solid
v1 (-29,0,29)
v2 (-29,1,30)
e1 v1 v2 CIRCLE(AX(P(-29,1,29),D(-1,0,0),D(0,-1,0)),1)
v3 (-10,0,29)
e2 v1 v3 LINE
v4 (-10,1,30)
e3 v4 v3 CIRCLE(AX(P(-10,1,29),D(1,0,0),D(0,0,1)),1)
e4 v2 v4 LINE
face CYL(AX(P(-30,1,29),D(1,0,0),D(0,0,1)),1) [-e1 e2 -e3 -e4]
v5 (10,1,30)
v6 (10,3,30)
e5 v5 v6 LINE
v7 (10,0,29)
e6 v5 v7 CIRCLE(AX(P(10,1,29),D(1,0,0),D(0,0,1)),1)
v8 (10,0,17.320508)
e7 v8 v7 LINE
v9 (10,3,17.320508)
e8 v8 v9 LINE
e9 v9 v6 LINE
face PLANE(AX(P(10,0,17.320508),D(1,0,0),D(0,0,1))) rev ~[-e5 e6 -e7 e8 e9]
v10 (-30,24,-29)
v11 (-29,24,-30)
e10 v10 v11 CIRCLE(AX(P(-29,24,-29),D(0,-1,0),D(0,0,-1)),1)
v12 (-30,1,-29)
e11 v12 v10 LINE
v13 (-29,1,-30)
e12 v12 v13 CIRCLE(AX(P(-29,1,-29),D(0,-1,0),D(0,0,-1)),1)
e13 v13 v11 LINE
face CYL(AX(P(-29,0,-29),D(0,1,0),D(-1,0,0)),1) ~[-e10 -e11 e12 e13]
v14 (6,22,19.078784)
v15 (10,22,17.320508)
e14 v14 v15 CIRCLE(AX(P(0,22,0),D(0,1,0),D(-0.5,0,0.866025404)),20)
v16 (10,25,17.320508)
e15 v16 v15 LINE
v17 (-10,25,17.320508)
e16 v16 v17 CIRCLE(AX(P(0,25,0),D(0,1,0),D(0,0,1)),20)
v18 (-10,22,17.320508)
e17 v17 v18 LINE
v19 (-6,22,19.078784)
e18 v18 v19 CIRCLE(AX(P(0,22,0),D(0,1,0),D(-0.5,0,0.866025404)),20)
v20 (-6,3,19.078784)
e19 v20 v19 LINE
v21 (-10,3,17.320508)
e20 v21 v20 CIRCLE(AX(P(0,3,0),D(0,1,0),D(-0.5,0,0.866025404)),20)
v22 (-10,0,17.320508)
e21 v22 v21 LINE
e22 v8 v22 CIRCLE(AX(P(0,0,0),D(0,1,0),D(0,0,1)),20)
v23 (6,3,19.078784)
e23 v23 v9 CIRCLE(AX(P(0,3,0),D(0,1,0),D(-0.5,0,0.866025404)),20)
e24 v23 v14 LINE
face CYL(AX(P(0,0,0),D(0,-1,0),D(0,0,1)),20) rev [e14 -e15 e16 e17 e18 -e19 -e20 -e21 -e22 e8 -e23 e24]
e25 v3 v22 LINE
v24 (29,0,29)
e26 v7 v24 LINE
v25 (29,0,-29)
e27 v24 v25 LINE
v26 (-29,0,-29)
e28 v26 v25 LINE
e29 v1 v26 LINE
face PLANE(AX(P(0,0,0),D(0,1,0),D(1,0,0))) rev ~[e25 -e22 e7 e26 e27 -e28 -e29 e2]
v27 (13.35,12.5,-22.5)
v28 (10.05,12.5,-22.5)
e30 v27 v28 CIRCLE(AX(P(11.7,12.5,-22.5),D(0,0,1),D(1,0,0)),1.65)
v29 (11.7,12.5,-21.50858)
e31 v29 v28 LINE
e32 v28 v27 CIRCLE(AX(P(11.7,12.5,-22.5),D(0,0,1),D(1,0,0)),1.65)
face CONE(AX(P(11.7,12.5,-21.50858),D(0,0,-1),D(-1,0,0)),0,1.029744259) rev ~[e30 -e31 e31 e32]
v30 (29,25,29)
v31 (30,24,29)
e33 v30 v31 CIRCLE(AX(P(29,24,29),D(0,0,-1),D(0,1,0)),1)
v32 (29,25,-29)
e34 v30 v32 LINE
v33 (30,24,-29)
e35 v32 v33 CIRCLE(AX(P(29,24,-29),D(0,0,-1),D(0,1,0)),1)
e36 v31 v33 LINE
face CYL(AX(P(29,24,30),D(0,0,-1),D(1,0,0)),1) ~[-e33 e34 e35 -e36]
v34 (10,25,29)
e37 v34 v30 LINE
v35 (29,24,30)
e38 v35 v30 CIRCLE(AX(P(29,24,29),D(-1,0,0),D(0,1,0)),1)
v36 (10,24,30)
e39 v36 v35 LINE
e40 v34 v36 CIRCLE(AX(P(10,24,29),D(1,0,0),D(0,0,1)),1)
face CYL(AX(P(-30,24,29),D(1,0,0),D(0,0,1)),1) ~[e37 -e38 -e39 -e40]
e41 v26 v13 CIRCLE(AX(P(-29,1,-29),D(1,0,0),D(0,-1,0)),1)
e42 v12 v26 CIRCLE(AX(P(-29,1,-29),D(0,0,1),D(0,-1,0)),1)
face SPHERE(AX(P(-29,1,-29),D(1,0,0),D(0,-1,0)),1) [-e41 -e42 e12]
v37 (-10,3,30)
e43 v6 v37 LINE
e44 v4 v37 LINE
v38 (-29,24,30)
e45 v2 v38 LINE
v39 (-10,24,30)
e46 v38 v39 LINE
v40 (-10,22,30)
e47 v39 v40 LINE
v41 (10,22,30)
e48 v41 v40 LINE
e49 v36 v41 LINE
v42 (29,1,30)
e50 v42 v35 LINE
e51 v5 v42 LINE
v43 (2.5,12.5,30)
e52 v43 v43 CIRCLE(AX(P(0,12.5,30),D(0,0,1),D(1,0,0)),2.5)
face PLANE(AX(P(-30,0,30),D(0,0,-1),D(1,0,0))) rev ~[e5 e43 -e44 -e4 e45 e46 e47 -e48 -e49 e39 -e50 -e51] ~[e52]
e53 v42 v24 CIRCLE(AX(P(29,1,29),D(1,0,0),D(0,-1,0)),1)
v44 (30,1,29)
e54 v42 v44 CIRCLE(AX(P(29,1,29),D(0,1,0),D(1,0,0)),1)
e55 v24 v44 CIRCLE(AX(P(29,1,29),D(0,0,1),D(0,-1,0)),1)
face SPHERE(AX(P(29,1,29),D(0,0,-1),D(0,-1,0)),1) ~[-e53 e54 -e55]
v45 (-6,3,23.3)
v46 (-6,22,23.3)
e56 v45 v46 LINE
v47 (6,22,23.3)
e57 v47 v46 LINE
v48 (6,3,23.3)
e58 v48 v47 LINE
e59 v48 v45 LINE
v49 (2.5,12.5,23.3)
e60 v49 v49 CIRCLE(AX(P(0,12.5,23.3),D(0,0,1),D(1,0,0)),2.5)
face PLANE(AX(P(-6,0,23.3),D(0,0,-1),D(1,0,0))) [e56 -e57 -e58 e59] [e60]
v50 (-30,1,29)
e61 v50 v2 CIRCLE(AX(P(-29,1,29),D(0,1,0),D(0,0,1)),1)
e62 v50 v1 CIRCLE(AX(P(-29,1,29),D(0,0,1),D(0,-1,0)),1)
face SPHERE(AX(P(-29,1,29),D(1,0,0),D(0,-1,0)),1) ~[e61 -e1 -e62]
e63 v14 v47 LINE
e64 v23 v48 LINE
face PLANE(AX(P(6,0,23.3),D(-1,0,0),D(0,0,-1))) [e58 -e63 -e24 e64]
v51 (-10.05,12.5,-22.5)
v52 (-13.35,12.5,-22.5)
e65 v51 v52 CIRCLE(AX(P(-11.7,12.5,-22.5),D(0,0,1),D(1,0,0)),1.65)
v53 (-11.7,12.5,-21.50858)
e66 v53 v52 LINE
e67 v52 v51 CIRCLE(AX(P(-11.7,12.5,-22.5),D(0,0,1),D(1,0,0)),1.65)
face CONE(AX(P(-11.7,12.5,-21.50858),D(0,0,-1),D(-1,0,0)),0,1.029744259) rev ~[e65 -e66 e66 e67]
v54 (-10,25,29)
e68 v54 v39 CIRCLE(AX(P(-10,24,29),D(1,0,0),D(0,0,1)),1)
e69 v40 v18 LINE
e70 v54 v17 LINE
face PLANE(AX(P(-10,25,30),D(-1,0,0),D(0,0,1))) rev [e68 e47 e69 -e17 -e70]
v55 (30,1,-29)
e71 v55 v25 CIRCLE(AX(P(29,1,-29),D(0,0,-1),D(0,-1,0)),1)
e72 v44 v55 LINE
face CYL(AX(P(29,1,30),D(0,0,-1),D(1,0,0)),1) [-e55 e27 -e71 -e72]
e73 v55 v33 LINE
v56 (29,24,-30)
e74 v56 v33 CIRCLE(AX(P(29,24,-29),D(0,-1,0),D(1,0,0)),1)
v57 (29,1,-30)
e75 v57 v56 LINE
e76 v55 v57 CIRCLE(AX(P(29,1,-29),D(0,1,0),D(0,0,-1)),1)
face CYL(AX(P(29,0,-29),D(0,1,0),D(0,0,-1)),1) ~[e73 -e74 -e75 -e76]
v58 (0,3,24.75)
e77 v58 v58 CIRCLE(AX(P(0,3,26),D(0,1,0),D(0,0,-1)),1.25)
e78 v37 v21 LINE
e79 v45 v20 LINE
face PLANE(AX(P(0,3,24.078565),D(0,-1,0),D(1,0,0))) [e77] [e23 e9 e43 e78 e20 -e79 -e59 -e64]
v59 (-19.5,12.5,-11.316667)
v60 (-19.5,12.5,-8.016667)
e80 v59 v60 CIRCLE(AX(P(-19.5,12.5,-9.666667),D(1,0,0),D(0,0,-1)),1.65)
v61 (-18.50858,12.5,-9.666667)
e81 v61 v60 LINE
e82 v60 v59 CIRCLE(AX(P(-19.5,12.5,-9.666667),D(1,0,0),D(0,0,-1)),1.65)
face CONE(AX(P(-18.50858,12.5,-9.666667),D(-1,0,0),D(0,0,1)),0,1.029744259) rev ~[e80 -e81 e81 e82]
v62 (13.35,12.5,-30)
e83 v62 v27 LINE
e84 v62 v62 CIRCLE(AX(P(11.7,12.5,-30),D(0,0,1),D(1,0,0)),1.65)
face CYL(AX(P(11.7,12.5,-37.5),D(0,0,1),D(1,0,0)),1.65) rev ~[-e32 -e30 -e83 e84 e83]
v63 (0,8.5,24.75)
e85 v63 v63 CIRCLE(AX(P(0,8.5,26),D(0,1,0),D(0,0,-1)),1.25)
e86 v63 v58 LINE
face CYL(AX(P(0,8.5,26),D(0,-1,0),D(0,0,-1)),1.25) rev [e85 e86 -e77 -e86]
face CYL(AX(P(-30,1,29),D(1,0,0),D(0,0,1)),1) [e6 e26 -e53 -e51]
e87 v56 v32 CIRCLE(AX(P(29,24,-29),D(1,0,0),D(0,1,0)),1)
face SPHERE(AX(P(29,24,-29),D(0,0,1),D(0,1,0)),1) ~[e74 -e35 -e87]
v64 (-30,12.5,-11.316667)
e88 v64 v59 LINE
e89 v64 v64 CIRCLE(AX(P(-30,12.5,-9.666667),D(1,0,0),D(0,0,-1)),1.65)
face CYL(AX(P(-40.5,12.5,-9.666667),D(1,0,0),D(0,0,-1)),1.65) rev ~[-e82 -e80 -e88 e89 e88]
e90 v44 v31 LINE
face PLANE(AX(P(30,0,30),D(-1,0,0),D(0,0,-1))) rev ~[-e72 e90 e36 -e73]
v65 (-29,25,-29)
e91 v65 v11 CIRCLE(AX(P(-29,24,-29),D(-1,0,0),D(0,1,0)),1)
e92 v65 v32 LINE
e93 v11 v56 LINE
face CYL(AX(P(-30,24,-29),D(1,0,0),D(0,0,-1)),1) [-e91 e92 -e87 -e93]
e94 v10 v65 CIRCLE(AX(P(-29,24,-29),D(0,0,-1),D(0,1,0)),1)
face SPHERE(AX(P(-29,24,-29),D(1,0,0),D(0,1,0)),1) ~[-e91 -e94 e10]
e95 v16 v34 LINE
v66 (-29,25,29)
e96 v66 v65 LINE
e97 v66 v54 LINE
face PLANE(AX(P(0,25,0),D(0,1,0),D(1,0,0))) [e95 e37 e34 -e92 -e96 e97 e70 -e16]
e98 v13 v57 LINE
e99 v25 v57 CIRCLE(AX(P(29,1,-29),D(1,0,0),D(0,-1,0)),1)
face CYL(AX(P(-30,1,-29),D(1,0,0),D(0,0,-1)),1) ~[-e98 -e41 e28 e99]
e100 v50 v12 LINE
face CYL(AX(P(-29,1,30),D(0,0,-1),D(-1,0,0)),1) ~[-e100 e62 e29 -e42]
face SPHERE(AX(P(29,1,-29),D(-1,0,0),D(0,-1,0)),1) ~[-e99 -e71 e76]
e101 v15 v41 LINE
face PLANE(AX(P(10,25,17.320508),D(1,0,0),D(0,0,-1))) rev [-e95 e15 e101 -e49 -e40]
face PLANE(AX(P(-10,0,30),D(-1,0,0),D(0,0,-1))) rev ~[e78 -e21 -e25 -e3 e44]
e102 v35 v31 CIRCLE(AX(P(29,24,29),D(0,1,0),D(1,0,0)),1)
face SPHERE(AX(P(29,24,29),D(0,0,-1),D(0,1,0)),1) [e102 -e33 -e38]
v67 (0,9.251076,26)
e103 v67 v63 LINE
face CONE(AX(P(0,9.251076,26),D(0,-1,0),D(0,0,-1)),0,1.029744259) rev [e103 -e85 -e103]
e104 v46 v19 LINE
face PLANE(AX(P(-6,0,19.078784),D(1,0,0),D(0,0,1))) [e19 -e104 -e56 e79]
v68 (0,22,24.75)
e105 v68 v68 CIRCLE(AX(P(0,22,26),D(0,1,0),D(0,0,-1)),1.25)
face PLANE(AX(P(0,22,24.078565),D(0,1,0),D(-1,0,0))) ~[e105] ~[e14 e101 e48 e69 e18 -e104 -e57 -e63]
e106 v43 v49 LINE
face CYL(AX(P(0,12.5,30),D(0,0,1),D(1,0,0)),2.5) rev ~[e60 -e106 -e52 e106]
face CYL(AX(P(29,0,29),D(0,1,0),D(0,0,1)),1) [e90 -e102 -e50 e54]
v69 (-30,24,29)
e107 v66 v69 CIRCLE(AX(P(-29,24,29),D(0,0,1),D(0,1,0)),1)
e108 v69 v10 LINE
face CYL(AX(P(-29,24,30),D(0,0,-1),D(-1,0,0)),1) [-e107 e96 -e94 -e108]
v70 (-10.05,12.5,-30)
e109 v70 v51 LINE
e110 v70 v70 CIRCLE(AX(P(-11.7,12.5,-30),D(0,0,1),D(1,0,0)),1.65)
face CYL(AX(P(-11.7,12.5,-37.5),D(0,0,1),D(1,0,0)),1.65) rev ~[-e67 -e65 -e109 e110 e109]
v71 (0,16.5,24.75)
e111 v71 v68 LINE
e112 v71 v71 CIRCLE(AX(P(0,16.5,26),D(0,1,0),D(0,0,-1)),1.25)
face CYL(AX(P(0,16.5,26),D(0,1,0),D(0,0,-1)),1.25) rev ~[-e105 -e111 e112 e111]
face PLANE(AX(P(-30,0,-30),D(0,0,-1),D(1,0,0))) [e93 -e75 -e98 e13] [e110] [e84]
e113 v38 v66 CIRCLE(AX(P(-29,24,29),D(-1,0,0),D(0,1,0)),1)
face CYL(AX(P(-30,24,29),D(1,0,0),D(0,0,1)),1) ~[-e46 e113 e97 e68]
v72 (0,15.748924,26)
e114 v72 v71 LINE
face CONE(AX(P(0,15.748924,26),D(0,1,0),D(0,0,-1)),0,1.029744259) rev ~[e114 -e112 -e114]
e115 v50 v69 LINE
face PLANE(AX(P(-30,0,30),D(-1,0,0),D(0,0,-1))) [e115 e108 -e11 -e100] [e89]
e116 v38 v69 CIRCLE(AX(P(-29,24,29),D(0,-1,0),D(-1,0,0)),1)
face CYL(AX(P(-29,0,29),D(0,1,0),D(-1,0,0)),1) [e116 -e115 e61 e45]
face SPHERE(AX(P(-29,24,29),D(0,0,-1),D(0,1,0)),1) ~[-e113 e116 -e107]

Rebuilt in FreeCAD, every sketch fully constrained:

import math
import FreeCAD as App
import Part
import Sketcher
Q = App.Units.Quantity


def edges_at(feature, points):
    """Names of the edges that pass closest to the given points."""
    edges = feature.Shape.Edges
    near = lambda p: min(range(len(edges)), key=lambda i: edges[i].distToShape(Part.Vertex(*p))[0])
    return sorted({f"Edge{near(p) + 1}" for p in points})

doc = App.newDocument("Part")
body = doc.addObject("PartDesign::Body", "Body")

sketch1 = doc.addObject("Sketcher::SketchObject", "Sketch")
body.addObject(sketch1)
sketch1.AttachmentSupport = (doc.XZ_Plane, [""])
sketch1.MapMode = "FlatFace"
sketch1.addGeometry(Part.LineSegment(App.Vector(-30, -30, 0), App.Vector(-30, 30, 0)), False)
sketch1.addGeometry(Part.LineSegment(App.Vector(-30, 30, 0), App.Vector(30, 30, 0)), False)
sketch1.addGeometry(Part.LineSegment(App.Vector(30, 30, 0), App.Vector(30, -30, 0)), False)
sketch1.addGeometry(Part.LineSegment(App.Vector(30, -30, 0), App.Vector(-30, -30, 0)), False)
sketch1.addGeometry(Part.Circle(App.Vector(0, 0, 0), App.Vector(0, 0, 1), 20), False)
sketch1.addConstraint(Sketcher.Constraint("Coincident", 0, 2, 1, 1))
sketch1.addConstraint(Sketcher.Constraint("Coincident", 1, 2, 2, 1))
sketch1.addConstraint(Sketcher.Constraint("Coincident", 2, 2, 3, 1))
sketch1.addConstraint(Sketcher.Constraint("Coincident", 3, 2, 0, 1))
sketch1.addConstraint(Sketcher.Constraint("Vertical", 0))
sketch1.addConstraint(Sketcher.Constraint("Horizontal", 1))
sketch1.addConstraint(Sketcher.Constraint("Vertical", 2))
sketch1.addConstraint(Sketcher.Constraint("Horizontal", 3))
sketch1.addConstraint(Sketcher.Constraint("Coincident", 4, 3, -1, 1))
sketch1.addConstraint(Sketcher.Constraint("Symmetric", 0, 2, 2, 2, -1, 1))
sketch1.addConstraint(Sketcher.Constraint("Equal", 3, 0))
sketch1.addConstraint(Sketcher.Constraint("Diameter", 4, Q("40 mm")))
sketch1.addConstraint(Sketcher.Constraint("DistanceX", 1, 1, 1, 2, Q("60 mm")))
pad1 = doc.addObject("PartDesign::Pad", "Pad")
body.addObject(pad1)
pad1.Profile = sketch1
pad1.Length = 25
pad1.Reversed = True
doc.recompute()

fillet = doc.addObject("PartDesign::Fillet", "Fillet")
body.addObject(fillet)
fillet.Base = (pad1, edges_at(pad1, [
    (30, 25, 0),
    (0, 25, -30),
    (-30, 25, 0),
    (0, 0, -30),
    (30, 0, 0),
    (0, 0, 30),
    (-30, 0, 0),
    (0, 25, 30),
    (-30, 12.5, -30),
    (30, 12.5, -30),
    (30, 12.5, 30),
    (-30, 12.5, 30),
]))
fillet.Radius = 1

sketch2 = doc.addObject("Sketcher::SketchObject", "Sketch001")
body.addObject(sketch2)
sketch2.AttachmentSupport = (doc.XY_Plane, [""])
sketch2.MapMode = "FlatFace"
sketch2.AttachmentOffset = App.Placement(App.Vector(0, 0, 30), App.Rotation())
sketch2.addGeometry(Part.Circle(App.Vector(0, 12.5, 0), App.Vector(0, 0, 1), 2.5), False)
sketch2.addConstraint(Sketcher.Constraint("PointOnObject", 0, 3, -2))
sketch2.addConstraint(Sketcher.Constraint("Diameter", 0, Q("5 mm")))
sketch2.addConstraint(Sketcher.Constraint("DistanceY", -1, 1, 0, 3, Q("12.5 mm")))
pocket1 = doc.addObject("PartDesign::Pocket", "Pocket")
body.addObject(pocket1)
pocket1.Profile = sketch2
pocket1.Type = "UpToFirst"

sketch3 = doc.addObject("Sketcher::SketchObject", "Sketch002")
body.addObject(sketch3)
sketch3.AttachmentSupport = (doc.XY_Plane, [""])
sketch3.MapMode = "FlatFace"
sketch3.AttachmentOffset = App.Placement(App.Vector(0, 0, -30), App.Rotation())
sketch3.addGeometry(Part.Circle(App.Vector(-11.7, 12.5, 0), App.Vector(0, 0, 1), 1.6), False)
sketch3.addGeometry(Part.Circle(App.Vector(11.7, 12.5, 0), App.Vector(0, 0, 1), 1.6), False)
sketch3.addConstraint(Sketcher.Constraint("Equal", 0, 1))
sketch3.addConstraint(Sketcher.Constraint("Symmetric", 0, 3, 1, 3, -2))
sketch3.addConstraint(Sketcher.Constraint("Diameter", 0, Q("3.3 mm")))
sketch3.addConstraint(Sketcher.Constraint("DistanceX", 0, 3, -1, 1, Q("11.7 mm")))
sketch3.addConstraint(Sketcher.Constraint("DistanceY", -1, 1, 0, 3, Q("12.5 mm")))
doc.recompute()
hole = doc.addObject("PartDesign::Hole", "Hole")
body.addObject(hole)
hole.Profile = sketch3
hole.ThreadType = "None"
hole.Diameter = 3.3
hole.DepthType = "Dimension"
hole.Depth = 7.5
hole.DrillPoint = "Angled"
hole.DrillPointAngle = 118
hole.Reversed = True

sketch4 = doc.addObject("Sketcher::SketchObject", "Sketch003")
body.addObject(sketch4)
sketch4.AttachmentSupport = (doc.YZ_Plane, [""])
sketch4.MapMode = "FlatFace"
sketch4.AttachmentOffset = App.Placement(App.Vector(0, 0, -30), App.Rotation())
sketch4.addGeometry(Part.Circle(App.Vector(12.5, -9.7, 0), App.Vector(0, 0, 1), 1.6), False)
sketch4.addConstraint(Sketcher.Constraint("Diameter", 0, Q("3.3 mm")))
sketch4.addConstraint(Sketcher.Constraint("DistanceX", -1, 1, 0, 3, Q("12.5 mm")))
sketch4.addConstraint(Sketcher.Constraint("DistanceY", 0, 3, -1, 1, Q("9.666667 mm")))
doc.recompute()
hole2 = doc.addObject("PartDesign::Hole", "Hole001")
body.addObject(hole2)
hole2.Profile = sketch4
hole2.ThreadType = "None"
hole2.Diameter = 3.3
hole2.DepthType = "Dimension"
hole2.Depth = 10.5
hole2.DrillPoint = "Angled"
hole2.DrillPointAngle = 118
hole2.Reversed = True

sketch5 = doc.addObject("Sketcher::SketchObject", "Sketch004")
body.addObject(sketch5)
sketch5.AttachmentSupport = (doc.XZ_Plane, [""])
sketch5.MapMode = "FlatFace"
sketch5.addGeometry(Part.LineSegment(App.Vector(-6, 23.3, 0), App.Vector(-6, 19.1, 0)), False)
sketch5.addGeometry(Part.ArcOfCircle(Part.Circle(App.Vector(0, 0, 0), App.Vector(0, 0, 1), 20), math.radians(73), math.radians(107)), False)
sketch5.addGeometry(Part.LineSegment(App.Vector(6, 19.1, 0), App.Vector(6, 23.3, 0)), False)
sketch5.addGeometry(Part.LineSegment(App.Vector(6, 23.3, 0), App.Vector(-6, 23.3, 0)), False)
sketch5.addConstraint(Sketcher.Constraint("Coincident", 0, 2, 1, 2))
sketch5.addConstraint(Sketcher.Constraint("Coincident", 1, 1, 2, 1))
sketch5.addConstraint(Sketcher.Constraint("Coincident", 2, 2, 3, 1))
sketch5.addConstraint(Sketcher.Constraint("Coincident", 3, 2, 0, 1))
sketch5.addConstraint(Sketcher.Constraint("Vertical", 0))
sketch5.addConstraint(Sketcher.Constraint("Vertical", 2))
sketch5.addConstraint(Sketcher.Constraint("Horizontal", 3))
sketch5.addConstraint(Sketcher.Constraint("Coincident", 1, 3, -1, 1))
sketch5.addConstraint(Sketcher.Constraint("Horizontal", 0, 2, 1, 1))
sketch5.addConstraint(Sketcher.Constraint("Radius", 1, Q("20 mm")))
sketch5.addConstraint(Sketcher.Constraint("DistanceX", 3, 2, 3, 1, Q("12 mm")))
sketch5.addConstraint(Sketcher.Constraint("DistanceY", -1, 1, 2, 2, Q("23.3 mm")))
pocket2 = doc.addObject("PartDesign::Pocket", "Pocket001")
body.addObject(pocket2)
pocket2.Profile = sketch5
pocket2.Length = 25

sketch6 = doc.addObject("Sketcher::SketchObject", "Sketch005")
body.addObject(sketch6)
sketch6.AttachmentSupport = (doc.XZ_Plane, [""])
sketch6.MapMode = "FlatFace"
sketch6.addGeometry(Part.LineSegment(App.Vector(-10, 30, 0), App.Vector(-10, 17, 0)), False)
sketch6.addGeometry(Part.ArcOfCircle(Part.Circle(App.Vector(0, 0, 0), App.Vector(0, 0, 1), 20), math.radians(60), math.radians(120)), False)
sketch6.addGeometry(Part.LineSegment(App.Vector(10, 17, 0), App.Vector(10, 30, 0)), False)
sketch6.addGeometry(Part.LineSegment(App.Vector(10, 30, 0), App.Vector(-10, 30, 0)), False)
sketch6.addConstraint(Sketcher.Constraint("Coincident", 0, 2, 1, 2))
sketch6.addConstraint(Sketcher.Constraint("Coincident", 1, 1, 2, 1))
sketch6.addConstraint(Sketcher.Constraint("Coincident", 2, 2, 3, 1))
sketch6.addConstraint(Sketcher.Constraint("Coincident", 3, 2, 0, 1))
sketch6.addConstraint(Sketcher.Constraint("Vertical", 0))
sketch6.addConstraint(Sketcher.Constraint("Vertical", 2))
sketch6.addConstraint(Sketcher.Constraint("Horizontal", 3))
sketch6.addConstraint(Sketcher.Constraint("Coincident", 1, 3, -1, 1))
sketch6.addConstraint(Sketcher.Constraint("Horizontal", 0, 2, 1, 1))
sketch6.addConstraint(Sketcher.Constraint("Radius", 1, Q("20 mm")))
sketch6.addConstraint(Sketcher.Constraint("DistanceX", 3, 2, 3, 1, Q("20 mm")))
sketch6.addConstraint(Sketcher.Constraint("DistanceY", -1, 1, 2, 2, Q("30 mm")))
pocket3 = doc.addObject("PartDesign::Pocket", "Pocket002")
body.addObject(pocket3)
pocket3.Profile = sketch6
pocket3.Length = 3

sketch7 = doc.addObject("Sketcher::SketchObject", "Sketch006")
body.addObject(sketch7)
sketch7.AttachmentSupport = (doc.YZ_Plane, [""])
sketch7.MapMode = "FlatFace"
sketch7.addGeometry(Part.LineSegment(App.Vector(9.3, 26, 0), App.Vector(3, 26, 0)), False)
sketch7.addGeometry(Part.LineSegment(App.Vector(3, 26, 0), App.Vector(3, 24.8, 0)), False)
sketch7.addGeometry(Part.LineSegment(App.Vector(3, 24.8, 0), App.Vector(8.5, 24.8, 0)), False)
sketch7.addGeometry(Part.LineSegment(App.Vector(8.5, 24.8, 0), App.Vector(9.3, 26, 0)), False)
sketch7.addGeometry(Part.LineSegment(App.Vector(3, 26, 0), App.Vector(9.3, 26, 0)), True)
sketch7.addConstraint(Sketcher.Constraint("Coincident", 0, 2, 1, 1))
sketch7.addConstraint(Sketcher.Constraint("Coincident", 1, 2, 2, 1))
sketch7.addConstraint(Sketcher.Constraint("Coincident", 2, 2, 3, 1))
sketch7.addConstraint(Sketcher.Constraint("Coincident", 3, 2, 0, 1))
sketch7.addConstraint(Sketcher.Constraint("Horizontal", 0))
sketch7.addConstraint(Sketcher.Constraint("Vertical", 1))
sketch7.addConstraint(Sketcher.Constraint("Horizontal", 2))
sketch7.addConstraint(Sketcher.Constraint("Horizontal", 4))
sketch7.addConstraint(Sketcher.Constraint("Coincident", 4, 1, 0, 2))
sketch7.addConstraint(Sketcher.Constraint("Equal", 0, 4))
sketch7.addConstraint(Sketcher.Constraint("Angle", 3, Q("59 deg")))
sketch7.addConstraint(Sketcher.Constraint("DistanceX", 2, 1, 2, 2, Q("5.5 mm")))
sketch7.addConstraint(Sketcher.Constraint("DistanceX", -1, 1, 0, 2, Q("3 mm")))
sketch7.addConstraint(Sketcher.Constraint("DistanceY", -1, 1, 0, 2, Q("26 mm")))
sketch7.addConstraint(Sketcher.Constraint("DistanceY", 1, 2, 1, 1, Q("1.25 mm")))
groove = doc.addObject("PartDesign::Groove", "Groove")
body.addObject(groove)
groove.Profile = sketch7
groove.ReferenceAxis = (sketch7, ["Axis0"])
groove.Angle = 360
doc.recompute()

datumplane = doc.addObject("PartDesign::Plane", "DatumPlane")
body.addObject(datumplane)
datumplane.AttachmentSupport = (doc.XZ_Plane, [""])
datumplane.MapMode = "FlatFace"
datumplane.AttachmentOffset = App.Placement(App.Vector(0, 0, -12.5), App.Rotation())
mirrored = doc.addObject("PartDesign::Mirrored", "Mirrored")
body.addObject(mirrored)
mirrored.Originals = [pocket3, groove]
mirrored.MirrorPlane = (datumplane, [""])
body.Tip = mirrored

doc.recompute()
